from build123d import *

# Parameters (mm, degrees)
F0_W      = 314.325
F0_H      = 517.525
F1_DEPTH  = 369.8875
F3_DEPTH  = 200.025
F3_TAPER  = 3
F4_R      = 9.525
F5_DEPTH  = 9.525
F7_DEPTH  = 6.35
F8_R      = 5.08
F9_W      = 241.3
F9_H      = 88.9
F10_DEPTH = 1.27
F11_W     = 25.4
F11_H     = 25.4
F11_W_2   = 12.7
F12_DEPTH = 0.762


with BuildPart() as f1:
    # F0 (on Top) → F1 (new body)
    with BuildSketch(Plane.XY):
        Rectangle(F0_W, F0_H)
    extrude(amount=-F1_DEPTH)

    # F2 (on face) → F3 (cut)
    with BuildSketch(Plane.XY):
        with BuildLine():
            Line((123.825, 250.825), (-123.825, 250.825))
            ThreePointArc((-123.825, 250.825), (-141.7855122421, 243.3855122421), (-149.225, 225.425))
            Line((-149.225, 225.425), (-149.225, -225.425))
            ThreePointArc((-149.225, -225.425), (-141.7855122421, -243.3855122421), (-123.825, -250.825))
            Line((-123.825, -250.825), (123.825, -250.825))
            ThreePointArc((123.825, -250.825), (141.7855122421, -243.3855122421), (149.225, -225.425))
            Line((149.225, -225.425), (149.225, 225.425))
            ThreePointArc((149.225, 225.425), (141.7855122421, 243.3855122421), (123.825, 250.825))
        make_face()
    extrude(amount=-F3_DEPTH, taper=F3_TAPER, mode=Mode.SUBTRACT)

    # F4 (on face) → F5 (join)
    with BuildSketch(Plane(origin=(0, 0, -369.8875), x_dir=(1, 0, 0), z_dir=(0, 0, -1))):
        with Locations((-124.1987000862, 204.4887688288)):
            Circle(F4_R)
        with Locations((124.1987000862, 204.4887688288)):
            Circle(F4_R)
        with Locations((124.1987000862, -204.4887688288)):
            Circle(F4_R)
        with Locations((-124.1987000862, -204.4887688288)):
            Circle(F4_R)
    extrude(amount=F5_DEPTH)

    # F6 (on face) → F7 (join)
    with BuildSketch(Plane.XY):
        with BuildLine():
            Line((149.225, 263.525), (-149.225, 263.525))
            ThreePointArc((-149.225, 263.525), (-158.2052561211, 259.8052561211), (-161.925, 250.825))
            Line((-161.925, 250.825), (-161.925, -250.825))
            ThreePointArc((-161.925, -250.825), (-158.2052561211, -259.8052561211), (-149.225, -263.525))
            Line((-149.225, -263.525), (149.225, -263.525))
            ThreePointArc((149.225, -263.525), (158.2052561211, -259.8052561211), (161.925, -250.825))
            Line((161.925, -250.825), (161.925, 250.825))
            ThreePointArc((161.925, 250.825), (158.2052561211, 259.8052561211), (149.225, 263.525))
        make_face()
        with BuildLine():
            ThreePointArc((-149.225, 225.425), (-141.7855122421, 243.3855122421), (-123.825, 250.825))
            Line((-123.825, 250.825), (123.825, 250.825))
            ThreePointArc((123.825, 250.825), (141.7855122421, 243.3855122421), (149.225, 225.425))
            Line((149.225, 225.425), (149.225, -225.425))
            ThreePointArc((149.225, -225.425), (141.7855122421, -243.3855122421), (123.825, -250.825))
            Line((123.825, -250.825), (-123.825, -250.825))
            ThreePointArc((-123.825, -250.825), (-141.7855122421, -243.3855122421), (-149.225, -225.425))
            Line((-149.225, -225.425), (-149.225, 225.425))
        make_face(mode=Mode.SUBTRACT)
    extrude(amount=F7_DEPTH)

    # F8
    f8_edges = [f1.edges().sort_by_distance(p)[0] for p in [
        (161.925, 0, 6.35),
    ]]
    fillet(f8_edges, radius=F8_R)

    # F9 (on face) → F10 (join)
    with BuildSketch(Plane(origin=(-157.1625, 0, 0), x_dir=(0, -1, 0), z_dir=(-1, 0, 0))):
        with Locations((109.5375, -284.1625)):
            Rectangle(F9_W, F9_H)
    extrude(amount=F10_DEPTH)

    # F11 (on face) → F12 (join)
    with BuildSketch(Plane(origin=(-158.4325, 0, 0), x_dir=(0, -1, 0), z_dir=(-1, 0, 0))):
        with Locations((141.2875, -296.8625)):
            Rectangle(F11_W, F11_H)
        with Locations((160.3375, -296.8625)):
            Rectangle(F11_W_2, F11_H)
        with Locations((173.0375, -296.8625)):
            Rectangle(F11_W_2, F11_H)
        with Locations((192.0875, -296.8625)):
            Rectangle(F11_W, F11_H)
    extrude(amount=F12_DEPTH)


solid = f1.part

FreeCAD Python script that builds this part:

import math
import FreeCAD as App
import Part
import Sketcher
Q = App.Units.Quantity


def edges_at(feature, points):
    """Names of the edges that pass closest to the given points."""
    edges = feature.Shape.Edges
    near = lambda p: min(range(len(edges)), key=lambda i: edges[i].distToShape(Part.Vertex(*p))[0])
    return sorted({f"Edge{near(p) + 1}" for p in points})


def add_polygon(sketch, points):
    """Adds a closed chain of lines whose ends are joined by coincident constraints."""
    first, n = sketch.GeometryCount, len(points)
    for a, b in zip(points, points[1:] + points[:1]):
        sketch.addGeometry(Part.LineSegment(App.Vector(*a, 0), App.Vector(*b, 0)), False)
    for i in range(n):
        sketch.addConstraint(Sketcher.Constraint("Coincident", first + i, 2, first + (i + 1) % n, 1))

doc = App.newDocument("Part")
body = doc.addObject("PartDesign::Body", "Body")

# Sketch on XY plane
sketch1 = doc.addObject("Sketcher::SketchObject", "Sketch")
body.addObject(sketch1)
sketch1.AttachmentSupport = (doc.XY_Plane, [""])
sketch1.MapMode = "FlatFace"
add_polygon(sketch1, [(-157.1625, 258.7625), (-157.1625, -258.7625), (157.1625, -258.7625), (157.1625, 258.7625)])  # lines 0-3
sketch1.addConstraint(Sketcher.Constraint("Vertical", 0))
sketch1.addConstraint(Sketcher.Constraint("Horizontal", 1))
sketch1.addConstraint(Sketcher.Constraint("Vertical", 2))
sketch1.addConstraint(Sketcher.Constraint("Horizontal", 3))
sketch1.addConstraint(Sketcher.Constraint("Symmetric", 0, 2, 2, 2, -1, 1))
sketch1.addConstraint(Sketcher.Constraint("DistanceX", 1, 1, 1, 2, Q("12.375 in")))
sketch1.addConstraint(Sketcher.Constraint("DistanceY", 0, 2, 0, 1, Q("20.375 in")))
pad1 = doc.addObject("PartDesign::Pad", "Pad")
body.addObject(pad1)
pad1.Profile = sketch1
pad1.Length = Q("14.5625 in")
pad1.Reversed = True

# Sketch on XY plane
sketch2 = doc.addObject("Sketcher::SketchObject", "Sketch001")
body.addObject(sketch2)
sketch2.AttachmentSupport = (doc.XY_Plane, [""])
sketch2.MapMode = "FlatFace"
sketch2.addGeometry(Part.LineSegment(App.Vector(123.825, 250.825, 0), App.Vector(-123.825, 250.825, 0)), False)
sketch2.addGeometry(Part.ArcOfCircle(Part.Circle(App.Vector(-123.825, 225.425, 0), App.Vector(0, 0, 1), 25.4), math.radians(90), math.radians(180)), False)
sketch2.addGeometry(Part.LineSegment(App.Vector(-149.225, 225.425, 0), App.Vector(-149.225, -225.425, 0)), False)
sketch2.addGeometry(Part.ArcOfCircle(Part.Circle(App.Vector(-123.825, -225.425, 0), App.Vector(0, 0, 1), 25.4), math.radians(180), math.radians(270)), False)
sketch2.addGeometry(Part.LineSegment(App.Vector(-123.825, -250.825, 0), App.Vector(123.825, -250.825, 0)), False)
sketch2.addGeometry(Part.ArcOfCircle(Part.Circle(App.Vector(123.825, -225.425, 0), App.Vector(0, 0, 1), 25.4), math.radians(-90), math.radians(0)), False)
sketch2.addGeometry(Part.LineSegment(App.Vector(149.225, -225.425, 0), App.Vector(149.225, 225.425, 0)), False)
sketch2.addGeometry(Part.ArcOfCircle(Part.Circle(App.Vector(123.825, 225.425, 0), App.Vector(0, 0, 1), 25.4), math.radians(0), math.radians(90)), False)
sketch2.addConstraint(Sketcher.Constraint("Tangent", 0, 2, 1, 1))
sketch2.addConstraint(Sketcher.Constraint("Tangent", 1, 2, 2, 1))
sketch2.addConstraint(Sketcher.Constraint("Tangent", 2, 2, 3, 1))
sketch2.addConstraint(Sketcher.Constraint("Tangent", 3, 2, 4, 1))
sketch2.addConstraint(Sketcher.Constraint("Tangent", 4, 2, 5, 1))
sketch2.addConstraint(Sketcher.Constraint("Tangent", 5, 2, 6, 1))
sketch2.addConstraint(Sketcher.Constraint("Tangent", 6, 2, 7, 1))
sketch2.addConstraint(Sketcher.Constraint("Tangent", 7, 2, 0, 1))
sketch2.addConstraint(Sketcher.Constraint("Horizontal", 0))
sketch2.addConstraint(Sketcher.Constraint("Vertical", 2))
sketch2.addConstraint(Sketcher.Constraint("Horizontal", 4))
sketch2.addConstraint(Sketcher.Constraint("Vertical", 6))
sketch2.addConstraint(Sketcher.Constraint("Equal", 1, 3))
sketch2.addConstraint(Sketcher.Constraint("Equal", 3, 5))
sketch2.addConstraint(Sketcher.Constraint("Equal", 5, 7))
sketch2.addConstraint(Sketcher.Constraint("Symmetric", 1, 3, 5, 3, -1, 1))
sketch2.addConstraint(Sketcher.Constraint("Radius", 1, Q("1 in")))
sketch2.addConstraint(Sketcher.Constraint("DistanceX", 0, 2, 0, 1, Q("9.75 in")))
sketch2.addConstraint(Sketcher.Constraint("DistanceY", 2, 2, 2, 1, Q("17.75 in")))
pocket1 = doc.addObject("PartDesign::Pocket", "Pocket")
body.addObject(pocket1)
pocket1.Profile = sketch2
pocket1.Length = Q("7.875 in")
pocket1.TaperAngle = -3

# Sketch on XY plane
sketch3 = doc.addObject("Sketcher::SketchObject", "Sketch002")
body.addObject(sketch3)
sketch3.AttachmentSupport = (doc.XY_Plane, [""])
sketch3.MapMode = "FlatFace"
sketch3.AttachmentOffset = App.Placement(App.Vector(0, 0, -14.5625 * 25.4), App.Rotation())
sketch3.addGeometry(Part.Circle(App.Vector(-124.1987, -204.488769, 0), App.Vector(0, 0, 1), 9.525), False)
sketch3.addGeometry(Part.Circle(App.Vector(124.1987, -204.488769, 0), App.Vector(0, 0, 1), 9.525), False)
sketch3.addGeometry(Part.Circle(App.Vector(124.1987, 204.488769, 0), App.Vector(0, 0, 1), 9.525), False)
sketch3.addGeometry(Part.Circle(App.Vector(-124.1987, 204.488769, 0), App.Vector(0, 0, 1), 9.525), False)
sketch3.addConstraint(Sketcher.Constraint("Equal", 0, 1))
sketch3.addConstraint(Sketcher.Constraint("Equal", 1, 2))
sketch3.addConstraint(Sketcher.Constraint("Equal", 2, 3))
sketch3.addConstraint(Sketcher.Constraint("Symmetric", 0, 3, 2, 3, -1, 1))
sketch3.addConstraint(Sketcher.Constraint("Symmetric", 1, 3, 3, 3, -1, 1))
sketch3.addConstraint(Sketcher.Constraint("Symmetric", 0, 3, 1, 3, -2))
sketch3.addConstraint(Sketcher.Constraint("Diameter", 0, Q("0.75 in")))
sketch3.addConstraint(Sketcher.Constraint("DistanceX", 0, 3, -1, 1, 124.1987))
sketch3.addConstraint(Sketcher.Constraint("DistanceY", 0, 3, -1, 1, 204.488769))
pad2 = doc.addObject("PartDesign::Pad", "Pad001")
body.addObject(pad2)
pad2.Profile = sketch3
pad2.Length = Q("0.375 in")
pad2.Reversed = True

# Sketch on XY plane
sketch4 = doc.addObject("Sketcher::SketchObject", "Sketch003")
body.addObject(sketch4)
sketch4.AttachmentSupport = (doc.XY_Plane, [""])
sketch4.MapMode = "FlatFace"
sketch4.addGeometry(Part.LineSegment(App.Vector(149.225, 263.525, 0), App.Vector(-149.225, 263.525, 0)), False)
sketch4.addGeometry(Part.ArcOfCircle(Part.Circle(App.Vector(-149.225, 250.825, 0), App.Vector(0, 0, 1), 12.7), math.radians(90), math.radians(180)), False)
sketch4.addGeometry(Part.LineSegment(App.Vector(-161.925, 250.825, 0), App.Vector(-161.925, -250.825, 0)), False)
sketch4.addGeometry(Part.ArcOfCircle(Part.Circle(App.Vector(-149.225, -250.825, 0), App.Vector(0, 0, 1), 12.7), math.radians(180), math.radians(270)), False)
sketch4.addGeometry(Part.LineSegment(App.Vector(-149.225, -263.525, 0), App.Vector(149.225, -263.525, 0)), False)
sketch4.addGeometry(Part.ArcOfCircle(Part.Circle(App.Vector(149.225, -250.825, 0), App.Vector(0, 0, 1), 12.7), math.radians(-90), math.radians(0)), False)
sketch4.addGeometry(Part.LineSegment(App.Vector(161.925, -250.825, 0), App.Vector(161.925, 250.825, 0)), False)
sketch4.addGeometry(Part.ArcOfCircle(Part.Circle(App.Vector(149.225, 250.825, 0), App.Vector(0, 0, 1), 12.7), math.radians(0), math.radians(90)), False)
sketch4.addGeometry(Part.LineSegment(App.Vector(-149.225, -225.425, 0), App.Vector(-149.225, 225.425, 0)), False)
sketch4.addGeometry(Part.ArcOfCircle(Part.Circle(App.Vector(-123.825, 225.425, 0), App.Vector(0, 0, 1), 25.4), math.radians(90), math.radians(180)), False)
sketch4.addGeometry(Part.LineSegment(App.Vector(-123.825, 250.825, 0), App.Vector(123.825, 250.825, 0)), False)
sketch4.addGeometry(Part.ArcOfCircle(Part.Circle(App.Vector(123.825, 225.425, 0), App.Vector(0, 0, 1), 25.4), math.radians(0), math.radians(90)), False)
sketch4.addGeometry(Part.LineSegment(App.Vector(149.225, 225.425, 0), App.Vector(149.225, -225.425, 0)), False)
sketch4.addGeometry(Part.ArcOfCircle(Part.Circle(App.Vector(123.825, -225.425, 0), App.Vector(0, 0, 1), 25.4), math.radians(-90), math.radians(0)), False)
sketch4.addGeometry(Part.LineSegment(App.Vector(123.825, -250.825, 0), App.Vector(-123.825, -250.825, 0)), False)
sketch4.addGeometry(Part.ArcOfCircle(Part.Circle(App.Vector(-123.825, -225.425, 0), App.Vector(0, 0, 1), 25.4), math.radians(180), math.radians(270)), False)
sketch4.addConstraint(Sketcher.Constraint("Tangent", 0, 2, 1, 1))
sketch4.addConstraint(Sketcher.Constraint("Tangent", 1, 2, 2, 1))
sketch4.addConstraint(Sketcher.Constraint("Tangent", 2, 2, 3, 1))
sketch4.addConstraint(Sketcher.Constraint("Tangent", 3, 2, 4, 1))
sketch4.addConstraint(Sketcher.Constraint("Tangent", 4, 2, 5, 1))
sketch4.addConstraint(Sketcher.Constraint("Tangent", 5, 2, 6, 1))
sketch4.addConstraint(Sketcher.Constraint("Tangent", 6, 2, 7, 1))
sketch4.addConstraint(Sketcher.Constraint("Tangent", 7, 2, 0, 1))
sketch4.addConstraint(Sketcher.Constraint("Tangent", 8, 2, 9, 2))
sketch4.addConstraint(Sketcher.Constraint("Tangent", 9, 1, 10, 1))
sketch4.addConstraint(Sketcher.Constraint("Tangent", 10, 2, 11, 2))
sketch4.addConstraint(Sketcher.Constraint("Tangent", 11, 1, 12, 1))
sketch4.addConstraint(Sketcher.Constraint("Tangent", 12, 2, 13, 2))
sketch4.addConstraint(Sketcher.Constraint("Tangent", 13, 1, 14, 1))
sketch4.addConstraint(Sketcher.Constraint("Tangent", 14, 2, 15, 2))
sketch4.addConstraint(Sketcher.Constraint("Tangent", 15, 1, 8, 1))
sketch4.addConstraint(Sketcher.Constraint("Horizontal", 0))
sketch4.addConstraint(Sketcher.Constraint("Vertical", 2))
sketch4.addConstraint(Sketcher.Constraint("Horizontal", 4))
sketch4.addConstraint(Sketcher.Constraint("Vertical", 6))
sketch4.addConstraint(Sketcher.Constraint("Vertical", 8))
sketch4.addConstraint(Sketcher.Constraint("Horizontal", 10))
sketch4.addConstraint(Sketcher.Constraint("Vertical", 12))
sketch4.addConstraint(Sketcher.Constraint("Horizontal", 14))
sketch4.addConstraint(Sketcher.Constraint("Equal", 1, 3))
sketch4.addConstraint(Sketcher.Constraint("Equal", 3, 5))
sketch4.addConstraint(Sketcher.Constraint("Equal", 5, 7))
sketch4.addConstraint(Sketcher.Constraint("Equal", 9, 11))
sketch4.addConstraint(Sketcher.Constraint("Equal", 11, 13))
sketch4.addConstraint(Sketcher.Constraint("Equal", 13, 15))
sketch4.addConstraint(Sketcher.Constraint("Symmetric", 1, 3, 5, 3, -1, 1))
sketch4.addConstraint(Sketcher.Constraint("Symmetric", 9, 3, 13, 3, -1, 1))
sketch4.addConstraint(Sketcher.Constraint("Horizontal", 6, 2, 9, 1))
sketch4.addConstraint(Sketcher.Constraint("Vertical", 3, 2, 8, 2))
sketch4.addConstraint(Sketcher.Constraint("Radius", 9, Q("1 in")))
sketch4.addConstraint(Sketcher.Constraint("Radius", 1, Q("0.5 in")))
sketch4.addConstraint(Sketcher.Constraint("DistanceX", 0, 2, 0, 1, Q("11.75 in")))
sketch4.addConstraint(Sketcher.Constraint("DistanceY", 2, 2, 2, 1, Q("19.75 in")))
pad3 = doc.addObject("PartDesign::Pad", "Pad002")
body.addObject(pad3)
pad3.Profile = sketch4
pad3.Length = Q("0.25 in")
doc.recompute()

fillet = doc.addObject("PartDesign::Fillet", "Fillet")
body.addObject(fillet)
fillet.Base = (pad3, edges_at(pad3, [(161.925, 0, 6.35)]))
fillet.Radius = Q("0.2 in")

# Sketch on YZ plane
sketch5 = doc.addObject("Sketcher::SketchObject", "Sketch004")
body.addObject(sketch5)
sketch5.AttachmentSupport = (doc.YZ_Plane, [""])
sketch5.MapMode = "FlatFace"
sketch5.AttachmentOffset = App.Placement(App.Vector(0, 0, -6.1875 * 25.4), App.Rotation())
add_polygon(sketch5, [(11.1125, -239.7125), (11.1125, -328.6125), (-230.1875, -328.6125), (-230.1875, -239.7125)])  # lines 0-3
sketch5.addConstraint(Sketcher.Constraint("Vertical", 0))
sketch5.addConstraint(Sketcher.Constraint("Horizontal", 1))
sketch5.addConstraint(Sketcher.Constraint("Vertical", 2))
sketch5.addConstraint(Sketcher.Constraint("Horizontal", 3))
sketch5.addConstraint(Sketcher.Constraint("DistanceX", 1, 2, 1, 1, Q("9.5 in")))
sketch5.addConstraint(Sketcher.Constraint("DistanceY", 0, 2, 0, 1, Q("3.5 in")))
sketch5.addConstraint(Sketcher.Constraint("DistanceX", -1, 1, 0, 2, Q("0.4375 in")))
sketch5.addConstraint(Sketcher.Constraint("DistanceY", 0, 2, -1, 1, Q("12.9375 in")))
pad4 = doc.addObject("PartDesign::Pad", "Pad003")
body.addObject(pad4)
pad4.Profile = sketch5
pad4.Length = Q("0.05 in")
pad4.Reversed = True

# Sketch on YZ plane
sketch6 = doc.addObject("Sketcher::SketchObject", "Sketch005")
body.addObject(sketch6)
sketch6.AttachmentSupport = (doc.YZ_Plane, [""])
sketch6.MapMode = "FlatFace"
sketch6.AttachmentOffset = App.Placement(App.Vector(0, 0, -6.2375 * 25.4), App.Rotation())
add_polygon(sketch6, [(-128.5875, -284.1625), (-128.5875, -309.5625), (-204.7875, -309.5625), (-204.7875, -284.1625)])  # lines 0-3
sketch6.addConstraint(Sketcher.Constraint("Vertical", 0))
sketch6.addConstraint(Sketcher.Constraint("Horizontal", 1))
sketch6.addConstraint(Sketcher.Constraint("Vertical", 2))
sketch6.addConstraint(Sketcher.Constraint("Horizontal", 3))
sketch6.addConstraint(Sketcher.Constraint("DistanceX", 1, 2, 1, 1, Q("3 in")))
sketch6.addConstraint(Sketcher.Constraint("DistanceY", 0, 2, 0, 1, Q("1 in")))
sketch6.addConstraint(Sketcher.Constraint("DistanceX", 0, 2, -1, 1, Q("5.0625 in")))
sketch6.addConstraint(Sketcher.Constraint("DistanceY", 0, 2, -1, 1, Q("12.1875 in")))
pad5 = doc.addObject("PartDesign::Pad", "Pad004")
body.addObject(pad5)
pad5.Profile = sketch6
pad5.Length = Q("0.03 in")
pad5.Reversed = True

doc.recompute()
